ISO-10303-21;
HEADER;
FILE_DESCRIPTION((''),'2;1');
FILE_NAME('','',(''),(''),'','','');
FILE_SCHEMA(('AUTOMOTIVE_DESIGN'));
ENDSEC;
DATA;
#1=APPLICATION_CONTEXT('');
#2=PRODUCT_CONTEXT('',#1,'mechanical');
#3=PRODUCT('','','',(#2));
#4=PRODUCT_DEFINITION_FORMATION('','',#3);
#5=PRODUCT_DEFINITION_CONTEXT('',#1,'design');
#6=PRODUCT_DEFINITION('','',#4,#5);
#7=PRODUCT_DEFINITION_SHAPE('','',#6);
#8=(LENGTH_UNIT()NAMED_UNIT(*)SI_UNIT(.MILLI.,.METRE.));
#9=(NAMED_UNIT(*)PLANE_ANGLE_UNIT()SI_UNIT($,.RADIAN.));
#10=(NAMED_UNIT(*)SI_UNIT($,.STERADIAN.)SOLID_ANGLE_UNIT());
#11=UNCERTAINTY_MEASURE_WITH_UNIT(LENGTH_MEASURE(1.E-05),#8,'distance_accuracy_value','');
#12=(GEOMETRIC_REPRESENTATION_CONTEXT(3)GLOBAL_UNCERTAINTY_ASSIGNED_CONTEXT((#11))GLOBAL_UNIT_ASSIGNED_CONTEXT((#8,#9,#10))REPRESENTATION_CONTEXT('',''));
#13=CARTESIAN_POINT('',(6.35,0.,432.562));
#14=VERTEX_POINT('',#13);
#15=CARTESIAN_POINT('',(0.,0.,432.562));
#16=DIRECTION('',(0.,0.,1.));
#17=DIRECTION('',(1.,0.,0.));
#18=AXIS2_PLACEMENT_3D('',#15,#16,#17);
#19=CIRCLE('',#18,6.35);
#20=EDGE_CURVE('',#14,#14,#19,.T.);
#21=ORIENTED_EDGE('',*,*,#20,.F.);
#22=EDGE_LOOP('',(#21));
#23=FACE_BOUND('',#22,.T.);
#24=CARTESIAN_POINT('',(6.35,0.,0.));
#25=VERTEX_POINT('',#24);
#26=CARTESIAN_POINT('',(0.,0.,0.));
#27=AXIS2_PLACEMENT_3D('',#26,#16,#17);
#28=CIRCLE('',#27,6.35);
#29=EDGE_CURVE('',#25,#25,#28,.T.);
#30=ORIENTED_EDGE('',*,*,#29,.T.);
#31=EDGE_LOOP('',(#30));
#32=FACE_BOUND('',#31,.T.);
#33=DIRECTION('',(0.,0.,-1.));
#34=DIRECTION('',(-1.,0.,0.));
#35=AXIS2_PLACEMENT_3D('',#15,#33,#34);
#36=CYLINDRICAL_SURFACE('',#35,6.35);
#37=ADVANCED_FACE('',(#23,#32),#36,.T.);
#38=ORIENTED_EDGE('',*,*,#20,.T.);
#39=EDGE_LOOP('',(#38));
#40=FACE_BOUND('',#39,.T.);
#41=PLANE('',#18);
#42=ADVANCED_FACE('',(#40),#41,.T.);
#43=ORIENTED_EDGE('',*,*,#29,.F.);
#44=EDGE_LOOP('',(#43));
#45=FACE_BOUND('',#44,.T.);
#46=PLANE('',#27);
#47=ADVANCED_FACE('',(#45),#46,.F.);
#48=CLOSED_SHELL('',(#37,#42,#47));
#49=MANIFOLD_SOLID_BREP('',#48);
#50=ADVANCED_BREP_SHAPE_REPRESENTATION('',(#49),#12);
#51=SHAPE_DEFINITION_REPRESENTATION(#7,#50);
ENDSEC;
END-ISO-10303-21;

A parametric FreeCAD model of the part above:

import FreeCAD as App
import Part
import Sketcher

V = App.Vector
Q = App.Units.Quantity

doc = App.newDocument("Part")
body = doc.addObject("PartDesign::Body", "Body")

# Sketch on XY plane
sketch1 = doc.addObject("Sketcher::SketchObject", "Sketch")
body.addObject(sketch1)
sketch1.AttachmentSupport = (doc.XY_Plane, [""])
sketch1.MapMode = "FlatFace"
sketch1.addGeometry(Part.Circle(V(0, 0, 0), V(0, 0, 1), 6.35), False)
sketch1.addConstraint(Sketcher.Constraint("Coincident", 0, 3, -1, 1))
sketch1.addConstraint(Sketcher.Constraint("Diameter", 0, Q("0.5 in")))
pad1 = doc.addObject("PartDesign::Pad", "Pad")
body.addObject(pad1)
pad1.Profile = sketch1
pad1.Length = Q("17.03 in")

doc.recompute()
